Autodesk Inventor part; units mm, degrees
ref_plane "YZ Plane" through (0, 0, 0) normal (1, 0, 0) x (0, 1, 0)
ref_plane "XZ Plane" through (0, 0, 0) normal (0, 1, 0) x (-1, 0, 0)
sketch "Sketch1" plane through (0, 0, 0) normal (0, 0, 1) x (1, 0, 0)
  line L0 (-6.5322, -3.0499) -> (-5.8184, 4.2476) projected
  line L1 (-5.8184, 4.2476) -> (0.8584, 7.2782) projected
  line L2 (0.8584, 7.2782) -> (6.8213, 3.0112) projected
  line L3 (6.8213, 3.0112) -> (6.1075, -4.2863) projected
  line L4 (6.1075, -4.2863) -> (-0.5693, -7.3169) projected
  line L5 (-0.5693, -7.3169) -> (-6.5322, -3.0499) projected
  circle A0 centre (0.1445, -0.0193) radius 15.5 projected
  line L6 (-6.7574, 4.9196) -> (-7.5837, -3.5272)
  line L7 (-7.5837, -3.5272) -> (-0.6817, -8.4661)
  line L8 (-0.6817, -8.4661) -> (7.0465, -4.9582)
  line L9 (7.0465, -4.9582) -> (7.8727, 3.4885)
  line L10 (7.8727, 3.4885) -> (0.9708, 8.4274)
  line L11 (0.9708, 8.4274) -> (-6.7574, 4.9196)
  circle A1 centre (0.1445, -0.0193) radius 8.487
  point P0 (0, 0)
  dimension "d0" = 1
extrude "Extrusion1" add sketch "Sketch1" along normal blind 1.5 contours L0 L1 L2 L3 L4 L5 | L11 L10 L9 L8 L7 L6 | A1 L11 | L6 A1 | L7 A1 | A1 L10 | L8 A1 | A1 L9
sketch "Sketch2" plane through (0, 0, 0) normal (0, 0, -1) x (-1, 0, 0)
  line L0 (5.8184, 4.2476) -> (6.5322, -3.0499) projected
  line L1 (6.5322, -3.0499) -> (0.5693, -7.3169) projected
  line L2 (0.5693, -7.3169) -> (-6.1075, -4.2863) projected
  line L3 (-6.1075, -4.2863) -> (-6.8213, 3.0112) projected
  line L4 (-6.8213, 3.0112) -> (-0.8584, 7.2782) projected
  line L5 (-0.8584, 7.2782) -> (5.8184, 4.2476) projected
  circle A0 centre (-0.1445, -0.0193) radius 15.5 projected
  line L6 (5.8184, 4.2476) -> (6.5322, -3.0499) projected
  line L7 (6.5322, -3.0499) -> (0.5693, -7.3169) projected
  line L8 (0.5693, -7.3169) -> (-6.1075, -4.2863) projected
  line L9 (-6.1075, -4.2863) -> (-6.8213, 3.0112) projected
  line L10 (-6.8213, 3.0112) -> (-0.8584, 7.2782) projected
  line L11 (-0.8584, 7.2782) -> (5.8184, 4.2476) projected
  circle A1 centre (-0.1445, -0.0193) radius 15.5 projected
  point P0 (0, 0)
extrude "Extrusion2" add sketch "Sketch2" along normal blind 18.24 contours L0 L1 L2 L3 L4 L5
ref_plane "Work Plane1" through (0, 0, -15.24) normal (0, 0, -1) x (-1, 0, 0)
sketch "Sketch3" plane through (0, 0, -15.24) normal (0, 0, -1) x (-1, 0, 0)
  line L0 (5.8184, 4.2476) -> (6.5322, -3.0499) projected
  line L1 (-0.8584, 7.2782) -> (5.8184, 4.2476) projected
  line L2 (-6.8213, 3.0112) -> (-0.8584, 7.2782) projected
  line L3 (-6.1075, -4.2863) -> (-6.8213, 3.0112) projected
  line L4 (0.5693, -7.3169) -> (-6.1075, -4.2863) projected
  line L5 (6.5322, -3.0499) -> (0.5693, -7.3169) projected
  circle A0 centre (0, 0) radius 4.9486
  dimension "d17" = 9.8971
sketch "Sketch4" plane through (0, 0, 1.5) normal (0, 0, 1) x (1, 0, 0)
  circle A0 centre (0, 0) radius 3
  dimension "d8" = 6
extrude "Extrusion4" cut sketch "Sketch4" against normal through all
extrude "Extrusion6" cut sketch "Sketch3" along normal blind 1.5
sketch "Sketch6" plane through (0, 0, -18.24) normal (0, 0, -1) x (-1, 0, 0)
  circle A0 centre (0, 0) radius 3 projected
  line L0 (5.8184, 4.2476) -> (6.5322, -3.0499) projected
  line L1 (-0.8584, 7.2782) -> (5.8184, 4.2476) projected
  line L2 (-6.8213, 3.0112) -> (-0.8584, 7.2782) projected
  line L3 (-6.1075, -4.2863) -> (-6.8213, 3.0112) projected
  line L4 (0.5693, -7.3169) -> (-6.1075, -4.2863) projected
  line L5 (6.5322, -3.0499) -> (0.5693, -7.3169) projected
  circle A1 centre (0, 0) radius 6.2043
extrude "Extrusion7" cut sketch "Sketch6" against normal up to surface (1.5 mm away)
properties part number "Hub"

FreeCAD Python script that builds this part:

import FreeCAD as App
import Part
import Sketcher

V = App.Vector
Q = App.Units.Quantity

doc = App.newDocument("Part")
body = doc.addObject("PartDesign::Body", "Body")

sketch1 = body.newObject("Sketcher::SketchObject", "Sketch")
sketch1.AttachmentSupport = (doc.getObject("XY_Plane"), [""])
sketch1.MapMode = "FlatFace"
sketch1.addGeometry(Part.Circle(V(0, 0, 0), V(0, 0, 1), 8), False)
sketch1.addConstraint([
    Sketcher.Constraint("Diameter", 0, Q("16.974 mm")),
    Sketcher.Constraint("DistanceX", -1, 1, 0, 3, Q("0.1445 mm")),
    Sketcher.Constraint("DistanceY", 0, 3, -1, 1, Q("0.0193 mm")),
])
pad1 = body.newObject("PartDesign::Pad", "Pad")
pad1.Profile = sketch1
pad1.Length = 1.5

sketch2 = body.newObject("Sketcher::SketchObject", "Sketch001")
sketch2.AttachmentSupport = (doc.getObject("XY_Plane"), [""])
sketch2.MapMode = "FlatFace"
sketch2.addGeometry([
    Part.LineSegment(V(-7, -3, 0), V(-6, 4, 0)),
    Part.LineSegment(V(-6, 4, 0), V(1, 7, 0)),
    Part.LineSegment(V(1, 7, 0), V(7, 3, 0)),
    Part.LineSegment(V(7, 3, 0), V(6, -4, 0)),
    Part.LineSegment(V(6, -4, 0), V(-1, -7, 0)),
    Part.LineSegment(V(-1, -7, 0), V(-7, -3, 0)),
], False)
sketch2.addConstraint([
    Sketcher.Constraint("Coincident", 0, 2, 1, 1),
    Sketcher.Constraint("Coincident", 1, 2, 2, 1),
    Sketcher.Constraint("Coincident", 2, 2, 3, 1),
    Sketcher.Constraint("Coincident", 3, 2, 4, 1),
    Sketcher.Constraint("Coincident", 4, 2, 5, 1),
    Sketcher.Constraint("Coincident", 5, 2, 0, 1),
    Sketcher.Constraint("Parallel", 0, 3),
    Sketcher.Constraint("Parallel", 1, 4),
    Sketcher.Constraint("Parallel", 2, 5),
    Sketcher.Constraint("Equal", 0, 1),
    Sketcher.Constraint("Equal", 1, 2),
    Sketcher.Constraint("Equal", 2, 3),
    Sketcher.Constraint("DistanceY", 5, 2, -1, 1, Q("3.05 mm")),
    Sketcher.Constraint("DistanceY", 4, 2, -1, 1, Q("7.317 mm")),
    Sketcher.Constraint("DistanceX", 1, 2, 2, 2, Q("5.963 mm")),
    Sketcher.Constraint("DistanceX", 1, 2, 3, 2, Q("5.249 mm")),
    Sketcher.Constraint("DistanceX", 0, 2, 3, 2, Q("11.926 mm")),
    Sketcher.Constraint("DistanceX", 0, 2, -1, 1, Q("5.8184 mm")),
])
pad2 = body.newObject("PartDesign::Pad", "Pad001")
pad2.Profile = sketch2
pad2.Length = 18.24
pad2.Reversed = True

sketch3 = body.newObject("Sketcher::SketchObject", "Sketch002")
sketch3.AttachmentSupport = (doc.getObject("XY_Plane"), [""])
sketch3.MapMode = "FlatFace"
sketch3.AttachmentOffset = App.Placement(V(0, 0, 1.5), App.Rotation())
sketch3.addGeometry(Part.Circle(V(0, 0, 0), V(0, 0, 1), 3), False)
sketch3.addConstraint([
    Sketcher.Constraint("Coincident", 0, 3, -1, 1),
    Sketcher.Constraint("Diameter", 0, Q("6 mm")),
])
pocket1 = body.newObject("PartDesign::Pocket", "Pocket")
pocket1.Profile = sketch3
pocket1.Type = "ThroughAll"

sketch4 = body.newObject("Sketcher::SketchObject", "Sketch003")
sketch4.AttachmentSupport = (doc.getObject("XY_Plane"), [""])
sketch4.MapMode = "FlatFace"
sketch4.AttachmentOffset = App.Placement(V(0, 0, -15.24), App.Rotation())
sketch4.addGeometry([
    Part.LineSegment(V(-6.5, -3, 0), V(-5.8, 4.2, 0)),
    Part.LineSegment(V(-5.8, 4.2, 0), V(0.9, 7.3, 0)),
    Part.LineSegment(V(0.9, 7.3, 0), V(6.8, 3, 0)),
    Part.LineSegment(V(6.8, 3, 0), V(6.1, -4.3, 0)),
    Part.LineSegment(V(6.1, -4.3, 0), V(-0.6, -7.3, 0)),
    Part.LineSegment(V(-0.6, -7.3, 0), V(-6.5, -3, 0)),
    Part.Circle(V(0, 0, 0), V(0, 0, 1), 4.9),
], False)
sketch4.addConstraint([
    Sketcher.Constraint("Coincident", 0, 2, 1, 1),
    Sketcher.Constraint("Coincident", 1, 2, 2, 1),
    Sketcher.Constraint("Coincident", 2, 2, 3, 1),
    Sketcher.Constraint("Coincident", 3, 2, 4, 1),
    Sketcher.Constraint("Coincident", 4, 2, 5, 1),
    Sketcher.Constraint("Coincident", 5, 2, 0, 1),
    Sketcher.Constraint("Coincident", 6, 3, -1, 1),
    Sketcher.Constraint("Parallel", 0, 3),
    Sketcher.Constraint("Parallel", 1, 4),
    Sketcher.Constraint("Parallel", 2, 5),
    Sketcher.Constraint("Equal", 0, 1),
    Sketcher.Constraint("Equal", 1, 2),
    Sketcher.Constraint("Equal", 2, 3),
    Sketcher.Constraint("Diameter", 6, Q("9.8972 mm")),
    Sketcher.Constraint("DistanceY", 5, 2, -1, 1, Q("3.05 mm")),
    Sketcher.Constraint("DistanceY", 4, 2, -1, 1, Q("7.317 mm")),
    Sketcher.Constraint("DistanceX", 1, 2, 2, 2, Q("5.963 mm")),
    Sketcher.Constraint("DistanceX", 1, 2, 3, 2, Q("5.249 mm")),
    Sketcher.Constraint("DistanceX", 0, 2, 3, 2, Q("11.926 mm")),
    Sketcher.Constraint("DistanceX", 0, 2, -1, 1, Q("5.8184 mm")),
])
pocket2 = body.newObject("PartDesign::Pocket", "Pocket001")
pocket2.Profile = sketch4
pocket2.Length = 1.5

sketch5 = body.newObject("Sketcher::SketchObject", "Sketch004")
sketch5.AttachmentSupport = (doc.getObject("XY_Plane"), [""])
sketch5.MapMode = "FlatFace"
sketch5.AttachmentOffset = App.Placement(V(0, 0, -18.24), App.Rotation())
sketch5.addGeometry([
    Part.Circle(V(0, 0, 0), V(0, 0, 1), 3),
    Part.LineSegment(V(-6.2, 0.6, 0), V(-5.8, 4.2, 0)),
    Part.LineSegment(V(-5.8, 4.2, 0), V(0.9, 7.3, 0)),
    Part.LineSegment(V(0.9, 7.3, 0), V(6.8, 3, 0)),
    Part.LineSegment(V(6.8, 3, 0), V(6.1, -4.3, 0)),
    Part.LineSegment(V(6.1, -4.3, 0), V(-0.6, -7.3, 0)),
    Part.LineSegment(V(-0.6, -7.3, 0), V(-6.5, -3, 0)),
    Part.LineSegment(V(-6.5, -3, 0), V(-6.2, 0.6, 0)),
    Part.Circle(V(0, 0, 0), V(0, 0, 1), 6.2),
], False)
sketch5.addConstraint([
    Sketcher.Constraint("Coincident", 1, 2, 2, 1),
    Sketcher.Constraint("Coincident", 2, 2, 3, 1),
    Sketcher.Constraint("Coincident", 3, 2, 4, 1),
    Sketcher.Constraint("Coincident", 4, 2, 5, 1),
    Sketcher.Constraint("Coincident", 5, 2, 6, 1),
    Sketcher.Constraint("Coincident", 6, 2, 7, 1),
    Sketcher.Constraint("Coincident", 7, 2, 1, 1),
    Sketcher.Constraint("Coincident", 0, 3, -1, 1),
    Sketcher.Constraint("Coincident", 8, 3, -1, 1),
    Sketcher.Constraint("Parallel", 1, 4),
    Sketcher.Constraint("Parallel", 2, 5),
    Sketcher.Constraint("Parallel", 3, 6),
    Sketcher.Constraint("Parallel", 4, 7),
    Sketcher.Constraint("Equal", 2, 3),
    Sketcher.Constraint("Equal", 3, 4),
    Sketcher.Constraint("Equal", 4, 5),
    Sketcher.Constraint("Diameter", 0, Q("6 mm")),
    Sketcher.Constraint("Diameter", 8, Q("12.4086 mm")),
    Sketcher.Constraint("DistanceY", 6, 2, -1, 1, Q("3.05 mm")),
    Sketcher.Constraint("Distance", 1, Q("3.661 mm")),
    Sketcher.Constraint("DistanceY", 5, 2, -1, 1, Q("7.317 mm")),
    Sketcher.Constraint("DistanceY", -1, 1, 7, 2, Q("0.604 mm")),
    Sketcher.Constraint("DistanceX", 2, 2, 3, 2, Q("5.963 mm")),
    Sketcher.Constraint("DistanceX", 1, 2, 4, 2, Q("11.926 mm")),
    Sketcher.Constraint("DistanceX", 1, 2, -1, 1, Q("5.8184 mm")),
])
pocket3 = body.newObject("PartDesign::Pocket", "Pocket002")
pocket3.Profile = sketch5
pocket3.Length = 1.5
pocket3.Reversed = True

doc.recompute()
